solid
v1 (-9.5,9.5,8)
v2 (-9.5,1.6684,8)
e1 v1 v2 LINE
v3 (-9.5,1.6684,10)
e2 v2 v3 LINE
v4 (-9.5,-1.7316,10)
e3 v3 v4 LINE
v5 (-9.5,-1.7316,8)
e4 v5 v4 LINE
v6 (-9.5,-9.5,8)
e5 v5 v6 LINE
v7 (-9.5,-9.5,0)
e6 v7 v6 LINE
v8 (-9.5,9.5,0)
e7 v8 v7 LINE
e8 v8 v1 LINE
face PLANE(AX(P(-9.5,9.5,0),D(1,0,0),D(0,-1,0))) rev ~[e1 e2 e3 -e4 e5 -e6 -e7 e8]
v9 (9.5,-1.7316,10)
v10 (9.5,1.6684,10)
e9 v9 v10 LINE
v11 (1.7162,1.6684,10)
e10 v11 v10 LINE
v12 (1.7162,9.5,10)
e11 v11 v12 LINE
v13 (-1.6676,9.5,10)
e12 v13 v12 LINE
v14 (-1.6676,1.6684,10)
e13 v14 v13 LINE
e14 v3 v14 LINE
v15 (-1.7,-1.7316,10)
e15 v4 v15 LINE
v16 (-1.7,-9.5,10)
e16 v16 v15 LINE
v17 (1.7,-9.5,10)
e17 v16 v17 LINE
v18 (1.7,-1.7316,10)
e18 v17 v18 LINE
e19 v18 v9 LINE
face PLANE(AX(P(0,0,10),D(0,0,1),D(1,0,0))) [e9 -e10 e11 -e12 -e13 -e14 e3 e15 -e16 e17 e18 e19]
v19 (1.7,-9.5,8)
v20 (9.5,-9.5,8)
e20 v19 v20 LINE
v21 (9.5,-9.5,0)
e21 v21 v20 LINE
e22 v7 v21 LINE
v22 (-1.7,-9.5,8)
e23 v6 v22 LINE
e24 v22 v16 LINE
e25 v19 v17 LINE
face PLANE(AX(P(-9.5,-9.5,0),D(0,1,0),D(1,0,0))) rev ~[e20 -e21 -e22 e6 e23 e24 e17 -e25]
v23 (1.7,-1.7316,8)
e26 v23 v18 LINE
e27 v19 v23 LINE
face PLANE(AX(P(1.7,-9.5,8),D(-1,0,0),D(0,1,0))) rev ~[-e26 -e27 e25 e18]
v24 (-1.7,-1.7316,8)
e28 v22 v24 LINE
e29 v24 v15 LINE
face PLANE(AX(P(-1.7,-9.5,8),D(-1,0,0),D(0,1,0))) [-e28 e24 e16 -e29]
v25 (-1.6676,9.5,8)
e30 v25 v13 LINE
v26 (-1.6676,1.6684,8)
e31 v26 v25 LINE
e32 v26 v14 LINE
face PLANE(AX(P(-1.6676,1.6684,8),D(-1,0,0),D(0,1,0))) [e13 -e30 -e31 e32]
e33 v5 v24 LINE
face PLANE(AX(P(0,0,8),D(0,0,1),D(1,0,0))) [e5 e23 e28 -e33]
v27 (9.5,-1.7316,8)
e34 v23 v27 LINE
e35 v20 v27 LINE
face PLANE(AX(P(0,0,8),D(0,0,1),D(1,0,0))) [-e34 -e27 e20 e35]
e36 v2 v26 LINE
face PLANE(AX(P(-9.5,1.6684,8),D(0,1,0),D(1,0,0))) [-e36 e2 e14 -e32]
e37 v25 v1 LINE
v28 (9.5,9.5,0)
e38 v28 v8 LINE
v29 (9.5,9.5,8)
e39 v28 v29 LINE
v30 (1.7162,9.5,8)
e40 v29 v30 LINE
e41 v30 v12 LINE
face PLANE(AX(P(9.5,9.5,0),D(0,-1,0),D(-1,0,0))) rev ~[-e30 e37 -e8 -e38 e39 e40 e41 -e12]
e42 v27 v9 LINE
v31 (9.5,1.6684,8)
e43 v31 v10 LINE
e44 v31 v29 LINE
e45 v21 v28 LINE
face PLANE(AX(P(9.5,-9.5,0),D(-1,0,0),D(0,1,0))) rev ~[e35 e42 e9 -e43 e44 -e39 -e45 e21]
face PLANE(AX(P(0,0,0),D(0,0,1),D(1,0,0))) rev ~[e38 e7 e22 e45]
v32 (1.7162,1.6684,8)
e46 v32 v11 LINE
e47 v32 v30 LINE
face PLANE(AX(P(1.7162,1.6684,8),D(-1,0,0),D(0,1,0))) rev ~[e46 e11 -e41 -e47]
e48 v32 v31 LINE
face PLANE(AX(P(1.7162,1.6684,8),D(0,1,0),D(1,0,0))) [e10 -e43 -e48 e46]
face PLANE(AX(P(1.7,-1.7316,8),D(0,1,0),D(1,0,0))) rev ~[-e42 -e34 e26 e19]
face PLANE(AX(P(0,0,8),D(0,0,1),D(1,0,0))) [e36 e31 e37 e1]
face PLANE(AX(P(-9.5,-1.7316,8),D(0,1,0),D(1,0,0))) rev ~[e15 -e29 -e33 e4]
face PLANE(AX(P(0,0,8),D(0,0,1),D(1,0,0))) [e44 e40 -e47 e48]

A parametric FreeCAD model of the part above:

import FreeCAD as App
import Part
import Sketcher

V = App.Vector
Q = App.Units.Quantity

doc = App.newDocument("Part")
body = doc.addObject("PartDesign::Body", "Body")

# Sketch on XY plane
sketch1 = body.newObject("Sketcher::SketchObject", "Sketch")
sketch1.AttachmentSupport = (doc.getObject("XY_Plane"), [""])
sketch1.MapMode = "FlatFace"
sketch1.addGeometry([
    Part.LineSegment(V(-10, 10, 0), V(-10, -10, 0)),
    Part.LineSegment(V(-10, -10, 0), V(10, -10, 0)),
    Part.LineSegment(V(10, -10, 0), V(10, 10, 0)),
    Part.LineSegment(V(10, 10, 0), V(-10, 10, 0)),
], False)
sketch1.addConstraint([
    Sketcher.Constraint("Coincident", 0, 2, 1, 1),
    Sketcher.Constraint("Coincident", 1, 2, 2, 1),
    Sketcher.Constraint("Coincident", 2, 2, 3, 1),
    Sketcher.Constraint("Coincident", 3, 2, 0, 1),
    Sketcher.Constraint("Vertical", 0),
    Sketcher.Constraint("Horizontal", 1),
    Sketcher.Constraint("Vertical", 2),
    Sketcher.Constraint("Horizontal", 3),
    Sketcher.Constraint("Symmetric", 0, 2, 2, 2, -1, 1),
    Sketcher.Constraint("Equal", 3, 0),
    Sketcher.Constraint("DistanceX", 1, 1, 1, 2, Q("19 mm")),
])
pad1 = body.newObject("PartDesign::Pad", "Pad")
pad1.Profile = sketch1
pad1.Length = 8

# Sketch on XY plane
sketch2 = body.newObject("Sketcher::SketchObject", "Sketch001")
sketch2.AttachmentSupport = (doc.getObject("XY_Plane"), [""])
sketch2.MapMode = "FlatFace"
sketch2.AttachmentOffset = App.Placement(V(0, 0, 8), App.Rotation())
sketch2.addGeometry([
    Part.LineSegment(V(-1.7, 1.7, 0), V(-9.5, 1.7, 0)),  # 0
    Part.LineSegment(V(-9.5, 1.7, 0), V(-9.5, -1.7, 0)),  # 1
    Part.LineSegment(V(-9.5, -1.7, 0), V(-1.7, -1.7, 0)),  # 2
    Part.LineSegment(V(-1.7, -1.7, 0), V(-1.7, -9.5, 0)),  # 3
    Part.LineSegment(V(-1.7, -9.5, 0), V(1.7, -9.5, 0)),  # 4
    Part.LineSegment(V(1.7, -9.5, 0), V(1.7, -1.7, 0)),  # 5
    Part.LineSegment(V(1.7, -1.7, 0), V(9.5, -1.7, 0)),  # 6
    Part.LineSegment(V(9.5, -1.7, 0), V(9.5, 1.7, 0)),  # 7
    Part.LineSegment(V(9.5, 1.7, 0), V(1.7, 1.7, 0)),  # 8
    Part.LineSegment(V(1.7, 1.7, 0), V(1.7, 9.5, 0)),  # 9
    Part.LineSegment(V(1.7, 9.5, 0), V(-1.7, 9.5, 0)),  # 10
    Part.LineSegment(V(-1.7, 9.5, 0), V(-1.7, 1.7, 0)),  # 11
], False)
sketch2.addConstraint([
    Sketcher.Constraint("Coincident", 0, 2, 1, 1),
    Sketcher.Constraint("Coincident", 1, 2, 2, 1),
    Sketcher.Constraint("Coincident", 2, 2, 3, 1),
    Sketcher.Constraint("Coincident", 3, 2, 4, 1),
    Sketcher.Constraint("Coincident", 4, 2, 5, 1),
    Sketcher.Constraint("Coincident", 5, 2, 6, 1),
    Sketcher.Constraint("Coincident", 6, 2, 7, 1),
    Sketcher.Constraint("Coincident", 7, 2, 8, 1),
    Sketcher.Constraint("Coincident", 8, 2, 9, 1),
    Sketcher.Constraint("Coincident", 9, 2, 10, 1),
    Sketcher.Constraint("Coincident", 10, 2, 11, 1),
    Sketcher.Constraint("Coincident", 11, 2, 0, 1),
    Sketcher.Constraint("Horizontal", 0),
    Sketcher.Constraint("Vertical", 1),
    Sketcher.Constraint("Horizontal", 2),
    Sketcher.Constraint("Vertical", 3),
    Sketcher.Constraint("Horizontal", 4),
    Sketcher.Constraint("Vertical", 5),
    Sketcher.Constraint("Horizontal", 6),
    Sketcher.Constraint("Vertical", 7),
    Sketcher.Constraint("Horizontal", 8),
    Sketcher.Constraint("Vertical", 9),
    Sketcher.Constraint("Horizontal", 10),
    Sketcher.Constraint("Vertical", 11),
    Sketcher.Constraint("Symmetric", 2, 2, 5, 2, -2),
    Sketcher.Constraint("Symmetric", 0, 2, 7, 2, -2),
    Sketcher.Constraint("Equal", 4, 1),
    Sketcher.Constraint("DistanceX", 2, 1, 2, 2, Q("7.8 mm")),
    Sketcher.Constraint("DistanceX", 4, 1, 4, 2, Q("3.4 mm")),
    Sketcher.Constraint("DistanceY", 3, 2, -1, 1, Q("9.5 mm")),
    Sketcher.Constraint("DistanceY", -1, 1, 9, 2, Q("9.5 mm")),
    Sketcher.Constraint("DistanceX", 0, 2, 0, 1, Q("7.8324 mm")),
    Sketcher.Constraint("DistanceX", 8, 2, 8, 1, Q("7.7838 mm")),
    Sketcher.Constraint("DistanceY", 3, 2, 3, 1, Q("7.7684 mm")),
])
pad2 = body.newObject("PartDesign::Pad", "Pad001")
pad2.Profile = sketch2
pad2.Length = 2

doc.recompute()
